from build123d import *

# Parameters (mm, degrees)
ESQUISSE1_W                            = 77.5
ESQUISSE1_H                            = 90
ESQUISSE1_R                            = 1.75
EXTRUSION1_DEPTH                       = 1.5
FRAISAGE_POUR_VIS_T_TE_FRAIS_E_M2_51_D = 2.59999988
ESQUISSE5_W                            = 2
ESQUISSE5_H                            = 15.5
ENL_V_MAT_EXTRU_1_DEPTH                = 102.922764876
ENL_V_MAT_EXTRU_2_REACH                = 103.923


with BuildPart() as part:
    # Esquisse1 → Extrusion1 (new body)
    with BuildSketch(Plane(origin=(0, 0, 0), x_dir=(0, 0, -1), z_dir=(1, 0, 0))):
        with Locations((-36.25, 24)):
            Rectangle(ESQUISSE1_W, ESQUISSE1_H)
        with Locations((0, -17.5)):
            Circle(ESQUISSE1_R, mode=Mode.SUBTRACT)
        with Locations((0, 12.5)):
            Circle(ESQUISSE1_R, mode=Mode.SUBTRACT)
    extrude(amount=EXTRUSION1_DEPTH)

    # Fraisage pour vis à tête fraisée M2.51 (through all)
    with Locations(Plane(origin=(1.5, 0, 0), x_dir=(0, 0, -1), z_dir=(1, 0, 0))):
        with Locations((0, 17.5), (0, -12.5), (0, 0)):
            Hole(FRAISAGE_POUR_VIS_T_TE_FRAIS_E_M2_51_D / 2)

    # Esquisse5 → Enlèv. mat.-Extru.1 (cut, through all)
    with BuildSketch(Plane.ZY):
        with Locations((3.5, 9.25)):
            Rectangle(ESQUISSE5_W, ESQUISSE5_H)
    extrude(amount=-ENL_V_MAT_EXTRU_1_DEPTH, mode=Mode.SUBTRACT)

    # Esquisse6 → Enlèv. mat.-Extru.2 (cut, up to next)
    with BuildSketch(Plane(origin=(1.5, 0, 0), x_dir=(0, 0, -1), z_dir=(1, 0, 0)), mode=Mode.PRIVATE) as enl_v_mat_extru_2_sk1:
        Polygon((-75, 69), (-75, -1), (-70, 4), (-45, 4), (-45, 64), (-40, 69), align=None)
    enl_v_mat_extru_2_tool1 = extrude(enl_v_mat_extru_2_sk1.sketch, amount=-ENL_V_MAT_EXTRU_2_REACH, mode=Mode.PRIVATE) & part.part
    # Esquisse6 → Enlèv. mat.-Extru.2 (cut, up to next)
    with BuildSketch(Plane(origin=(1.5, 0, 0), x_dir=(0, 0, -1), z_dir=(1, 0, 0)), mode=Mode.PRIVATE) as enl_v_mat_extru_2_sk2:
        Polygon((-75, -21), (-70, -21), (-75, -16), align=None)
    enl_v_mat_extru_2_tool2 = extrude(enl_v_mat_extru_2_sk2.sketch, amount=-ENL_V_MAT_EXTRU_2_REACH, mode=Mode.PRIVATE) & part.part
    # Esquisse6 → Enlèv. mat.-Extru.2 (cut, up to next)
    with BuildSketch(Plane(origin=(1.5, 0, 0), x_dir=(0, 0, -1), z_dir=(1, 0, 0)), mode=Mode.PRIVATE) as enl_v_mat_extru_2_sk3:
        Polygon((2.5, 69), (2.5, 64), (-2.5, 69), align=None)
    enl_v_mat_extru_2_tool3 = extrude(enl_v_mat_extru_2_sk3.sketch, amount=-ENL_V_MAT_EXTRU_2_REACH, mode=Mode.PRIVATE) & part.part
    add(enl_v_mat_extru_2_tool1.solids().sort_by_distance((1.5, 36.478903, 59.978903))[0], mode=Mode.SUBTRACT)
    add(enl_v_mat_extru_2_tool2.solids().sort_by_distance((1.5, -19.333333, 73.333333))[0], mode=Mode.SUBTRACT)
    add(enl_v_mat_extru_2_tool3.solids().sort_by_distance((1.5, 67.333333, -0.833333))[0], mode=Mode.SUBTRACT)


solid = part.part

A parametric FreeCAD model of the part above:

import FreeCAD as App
import Part
import Sketcher

V = App.Vector


def add_polygon(sketch, points):
    """Adds a closed chain of lines whose ends are joined by coincident constraints."""
    first, n = sketch.GeometryCount, len(points)
    for a, b in zip(points, points[1:] + points[:1]):
        sketch.addGeometry(Part.LineSegment(App.Vector(*a, 0), App.Vector(*b, 0)), False)
    for i in range(n):
        sketch.addConstraint(Sketcher.Constraint("Coincident", first + i, 2, first + (i + 1) % n, 1))

doc = App.newDocument("Part")
params = doc.addObject("Spreadsheet::Sheet", "Params")
for row, (alias, value) in enumerate([
    ("sketch1_diameter", "3.5 mm"),
    ("sketch1_width", "90 mm"),
    ("sketch1_height", "77.5 mm"),
    ("pad1_length", "1.5 mm"),
    ("sketch2_diameter", "2.6 mm"),
    ("hole_diameter", "2.6 mm"),
    ("sketch3_height", "2 mm"),
    ("sketch3_width", "15.5 mm"),
    ("sketch4_width", "70 mm"),
    ("sketch4_width2", "60 mm"),
    ("sketch4_height", "25 mm"),
    ("sketch4_height2", "35 mm"),
    ("sketch5_width", "5 mm"),
    ("sketch6_width", "5 mm"),
], start=1):
    params.set(f"A{row}", alias)
    params.set(f"B{row}", "=" + value)
    params.setAlias(f"B{row}", alias)

body = doc.addObject("PartDesign::Body", "Body")

# Sketch on YZ plane
sketch1 = body.newObject("Sketcher::SketchObject", "Sketch")
sketch1.AttachmentSupport = (doc.getObject("YZ_Plane"), [""])
sketch1.MapMode = "FlatFace"
add_polygon(sketch1, [(69, 75), (-21, 75), (-21, -2.5), (69, -2.5)])  # lines 0-3
sketch1.addGeometry(Part.Circle(V(-17.5, 0, 0), V(0, 0, 1), 1.75), False)  # 4
sketch1.addGeometry(Part.Circle(V(12.5, 0, 0), V(0, 0, 1), 1.75), False)  # 5
sketch1.addConstraint([
    Sketcher.Constraint("Horizontal", 0),
    Sketcher.Constraint("Vertical", 1),
    Sketcher.Constraint("Horizontal", 2),
    Sketcher.Constraint("Vertical", 3),
    Sketcher.Constraint("Equal", 4, 5),
    Sketcher.Constraint("PointOnObject", 4, 3, -1),
    Sketcher.Constraint("PointOnObject", 5, 3, -1),
    Sketcher.Constraint("Diameter", 4, 3.5),
    Sketcher.Constraint("DistanceX", 0, 2, 0, 1, 90.0),
    Sketcher.Constraint("DistanceY", 1, 2, 1, 1, 77.5),
    Sketcher.Constraint("DistanceX", 0, 2, -1, 1, 21.0),
    Sketcher.Constraint("DistanceY", -1, 1, 0, 2, 75.0),
    Sketcher.Constraint("DistanceX", 4, 3, 5, 3, 30.0),
    Sketcher.Constraint("DistanceX", 4, 3, -1, 1, 17.5),
])
sketch1.setExpression("Constraints[11]", "Params.sketch1_diameter")
sketch1.setExpression("Constraints[12]", "Params.sketch1_width")
sketch1.setExpression("Constraints[13]", "Params.sketch1_height")
pad1 = body.newObject("PartDesign::Pad", "Pad")
pad1.Profile = sketch1
pad1.setExpression("Length", "Params.pad1_length")

# Sketch on YZ plane
sketch2 = body.newObject("Sketcher::SketchObject", "Sketch001")
sketch2.AttachmentSupport = (doc.getObject("YZ_Plane"), [""])
sketch2.MapMode = "FlatFace"
sketch2.AttachmentOffset = App.Placement(V(0, 0, 1.5), App.Rotation())
sketch2.addGeometry([
    Part.Circle(V(17.5, 0, 0), V(0, 0, 1), 1.3),
    Part.Circle(V(-12.5, 0, 0), V(0, 0, 1), 1.3),
    Part.Circle(V(0, 0, 0), V(0, 0, 1), 1.3),
], False)
sketch2.addConstraint([
    Sketcher.Constraint("Coincident", 2, 3, -1, 1),
    Sketcher.Constraint("Equal", 0, 1),
    Sketcher.Constraint("Equal", 1, 2),
    Sketcher.Constraint("PointOnObject", 0, 3, -1),
    Sketcher.Constraint("PointOnObject", 1, 3, -1),
    Sketcher.Constraint("Diameter", 0, 2.6),
    Sketcher.Constraint("DistanceX", 1, 3, 0, 3, 30.0),
    Sketcher.Constraint("DistanceX", -1, 1, 0, 3, 17.5),
])
sketch2.setExpression("Constraints[5]", "Params.sketch2_diameter")
doc.recompute()
hole = body.newObject("PartDesign::Hole", "Hole")
hole.Profile = sketch2
hole.ThreadType = "None"
hole.setExpression("Diameter", "Params.hole_diameter")
hole.DepthType = "ThroughAll"

# Sketch on YZ plane
sketch3 = body.newObject("Sketcher::SketchObject", "Sketch002")
sketch3.AttachmentSupport = (doc.getObject("YZ_Plane"), [""])
sketch3.MapMode = "FlatFace"
add_polygon(sketch3, [(17, 2.5), (1.5, 2.5), (1.5, 4.5), (17, 4.5)])  # lines 0-3
sketch3.addConstraint([
    Sketcher.Constraint("Horizontal", 0),
    Sketcher.Constraint("Vertical", 1),
    Sketcher.Constraint("Horizontal", 2),
    Sketcher.Constraint("Vertical", 3),
    Sketcher.Constraint("DistanceY", 1, 1, 1, 2, 2.0),
    Sketcher.Constraint("DistanceX", 0, 2, 0, 1, 15.5),
    Sketcher.Constraint("DistanceX", -1, 1, 2, 2, 17.0),
    Sketcher.Constraint("DistanceY", -1, 1, 0, 2, 2.5),
])
sketch3.setExpression("Constraints[8]", "Params.sketch3_height")
sketch3.setExpression("Constraints[9]", "Params.sketch3_width")
pocket1 = body.newObject("PartDesign::Pocket", "Pocket")
pocket1.Profile = sketch3
pocket1.Type = "ThroughAll"
pocket1.Reversed = True

# Sketch on YZ plane
sketch4 = body.newObject("Sketcher::SketchObject", "Sketch003")
sketch4.AttachmentSupport = (doc.getObject("YZ_Plane"), [""])
sketch4.MapMode = "FlatFace"
sketch4.AttachmentOffset = App.Placement(V(0, 0, 1.5), App.Rotation())
add_polygon(sketch4, [(69, 75), (-1, 75), (4, 70), (4, 45), (64, 45), (69, 40)])  # lines 0-5
sketch4.addConstraint([
    Sketcher.Constraint("Horizontal", 0),
    Sketcher.Constraint("Vertical", 2),
    Sketcher.Constraint("Horizontal", 3),
    Sketcher.Constraint("Vertical", 5),
    Sketcher.Constraint("Parallel", 1, 4),
    Sketcher.Constraint("Equal", 1, 4),
    Sketcher.Constraint("DistanceX", 0, 2, 0, 1, 70.0),
    Sketcher.Constraint("DistanceX", 3, 1, 3, 2, 60.0),
    Sketcher.Constraint("DistanceY", 2, 2, 2, 1, 25.0),
    Sketcher.Constraint("DistanceY", 5, 1, 5, 2, 35.0),
    Sketcher.Constraint("DistanceX", 0, 2, -1, 1, 1.0),
    Sketcher.Constraint("DistanceY", -1, 1, 0, 2, 75.0),
])
sketch4.setExpression("Constraints[12]", "Params.sketch4_width")
sketch4.setExpression("Constraints[13]", "Params.sketch4_width2")
sketch4.setExpression("Constraints[14]", "Params.sketch4_height")
sketch4.setExpression("Constraints[15]", "Params.sketch4_height2")
pocket2 = body.newObject("PartDesign::Pocket", "Pocket001")
pocket2.Profile = sketch4
pocket2.Type = "UpToFirst"

# Sketch on YZ plane
sketch5 = body.newObject("Sketcher::SketchObject", "Sketch004")
sketch5.AttachmentSupport = (doc.getObject("YZ_Plane"), [""])
sketch5.MapMode = "FlatFace"
sketch5.AttachmentOffset = App.Placement(V(0, 0, 1.5), App.Rotation())
add_polygon(sketch5, [(-21, 75), (-21, 70), (-16, 75)])  # lines 0-2
sketch5.addConstraint([
    Sketcher.Constraint("Vertical", 0),
    Sketcher.Constraint("Horizontal", 2),
    Sketcher.Constraint("Equal", 2, 0),
    Sketcher.Constraint("DistanceX", 2, 2, 2, 1, 5.0),
    Sketcher.Constraint("DistanceX", 0, 2, -1, 1, 21.0),
    Sketcher.Constraint("DistanceY", -1, 1, 0, 2, 70.0),
])
sketch5.setExpression("Constraints[6]", "Params.sketch5_width")
pocket3 = body.newObject("PartDesign::Pocket", "Pocket002")
pocket3.Profile = sketch5
pocket3.Type = "UpToFirst"

# Sketch on YZ plane
sketch6 = body.newObject("Sketcher::SketchObject", "Sketch005")
sketch6.AttachmentSupport = (doc.getObject("YZ_Plane"), [""])
sketch6.MapMode = "FlatFace"
sketch6.AttachmentOffset = App.Placement(V(0, 0, 1.5), App.Rotation())
add_polygon(sketch6, [(64, -2.5), (69, -2.5), (69, 2.5)])  # lines 0-2
sketch6.addConstraint([
    Sketcher.Constraint("Horizontal", 0),
    Sketcher.Constraint("Vertical", 1),
    Sketcher.Constraint("Equal", 0, 1),
    Sketcher.Constraint("DistanceX", 0, 1, 0, 2, 5.0),
    Sketcher.Constraint("DistanceX", -1, 1, 0, 2, 69.0),
    Sketcher.Constraint("DistanceY", 0, 2, -1, 1, 2.5),
])
sketch6.setExpression("Constraints[6]", "Params.sketch6_width")
pocket4 = body.newObject("PartDesign::Pocket", "Pocket003")
pocket4.Profile = sketch6
pocket4.Type = "UpToFirst"

doc.recompute()
